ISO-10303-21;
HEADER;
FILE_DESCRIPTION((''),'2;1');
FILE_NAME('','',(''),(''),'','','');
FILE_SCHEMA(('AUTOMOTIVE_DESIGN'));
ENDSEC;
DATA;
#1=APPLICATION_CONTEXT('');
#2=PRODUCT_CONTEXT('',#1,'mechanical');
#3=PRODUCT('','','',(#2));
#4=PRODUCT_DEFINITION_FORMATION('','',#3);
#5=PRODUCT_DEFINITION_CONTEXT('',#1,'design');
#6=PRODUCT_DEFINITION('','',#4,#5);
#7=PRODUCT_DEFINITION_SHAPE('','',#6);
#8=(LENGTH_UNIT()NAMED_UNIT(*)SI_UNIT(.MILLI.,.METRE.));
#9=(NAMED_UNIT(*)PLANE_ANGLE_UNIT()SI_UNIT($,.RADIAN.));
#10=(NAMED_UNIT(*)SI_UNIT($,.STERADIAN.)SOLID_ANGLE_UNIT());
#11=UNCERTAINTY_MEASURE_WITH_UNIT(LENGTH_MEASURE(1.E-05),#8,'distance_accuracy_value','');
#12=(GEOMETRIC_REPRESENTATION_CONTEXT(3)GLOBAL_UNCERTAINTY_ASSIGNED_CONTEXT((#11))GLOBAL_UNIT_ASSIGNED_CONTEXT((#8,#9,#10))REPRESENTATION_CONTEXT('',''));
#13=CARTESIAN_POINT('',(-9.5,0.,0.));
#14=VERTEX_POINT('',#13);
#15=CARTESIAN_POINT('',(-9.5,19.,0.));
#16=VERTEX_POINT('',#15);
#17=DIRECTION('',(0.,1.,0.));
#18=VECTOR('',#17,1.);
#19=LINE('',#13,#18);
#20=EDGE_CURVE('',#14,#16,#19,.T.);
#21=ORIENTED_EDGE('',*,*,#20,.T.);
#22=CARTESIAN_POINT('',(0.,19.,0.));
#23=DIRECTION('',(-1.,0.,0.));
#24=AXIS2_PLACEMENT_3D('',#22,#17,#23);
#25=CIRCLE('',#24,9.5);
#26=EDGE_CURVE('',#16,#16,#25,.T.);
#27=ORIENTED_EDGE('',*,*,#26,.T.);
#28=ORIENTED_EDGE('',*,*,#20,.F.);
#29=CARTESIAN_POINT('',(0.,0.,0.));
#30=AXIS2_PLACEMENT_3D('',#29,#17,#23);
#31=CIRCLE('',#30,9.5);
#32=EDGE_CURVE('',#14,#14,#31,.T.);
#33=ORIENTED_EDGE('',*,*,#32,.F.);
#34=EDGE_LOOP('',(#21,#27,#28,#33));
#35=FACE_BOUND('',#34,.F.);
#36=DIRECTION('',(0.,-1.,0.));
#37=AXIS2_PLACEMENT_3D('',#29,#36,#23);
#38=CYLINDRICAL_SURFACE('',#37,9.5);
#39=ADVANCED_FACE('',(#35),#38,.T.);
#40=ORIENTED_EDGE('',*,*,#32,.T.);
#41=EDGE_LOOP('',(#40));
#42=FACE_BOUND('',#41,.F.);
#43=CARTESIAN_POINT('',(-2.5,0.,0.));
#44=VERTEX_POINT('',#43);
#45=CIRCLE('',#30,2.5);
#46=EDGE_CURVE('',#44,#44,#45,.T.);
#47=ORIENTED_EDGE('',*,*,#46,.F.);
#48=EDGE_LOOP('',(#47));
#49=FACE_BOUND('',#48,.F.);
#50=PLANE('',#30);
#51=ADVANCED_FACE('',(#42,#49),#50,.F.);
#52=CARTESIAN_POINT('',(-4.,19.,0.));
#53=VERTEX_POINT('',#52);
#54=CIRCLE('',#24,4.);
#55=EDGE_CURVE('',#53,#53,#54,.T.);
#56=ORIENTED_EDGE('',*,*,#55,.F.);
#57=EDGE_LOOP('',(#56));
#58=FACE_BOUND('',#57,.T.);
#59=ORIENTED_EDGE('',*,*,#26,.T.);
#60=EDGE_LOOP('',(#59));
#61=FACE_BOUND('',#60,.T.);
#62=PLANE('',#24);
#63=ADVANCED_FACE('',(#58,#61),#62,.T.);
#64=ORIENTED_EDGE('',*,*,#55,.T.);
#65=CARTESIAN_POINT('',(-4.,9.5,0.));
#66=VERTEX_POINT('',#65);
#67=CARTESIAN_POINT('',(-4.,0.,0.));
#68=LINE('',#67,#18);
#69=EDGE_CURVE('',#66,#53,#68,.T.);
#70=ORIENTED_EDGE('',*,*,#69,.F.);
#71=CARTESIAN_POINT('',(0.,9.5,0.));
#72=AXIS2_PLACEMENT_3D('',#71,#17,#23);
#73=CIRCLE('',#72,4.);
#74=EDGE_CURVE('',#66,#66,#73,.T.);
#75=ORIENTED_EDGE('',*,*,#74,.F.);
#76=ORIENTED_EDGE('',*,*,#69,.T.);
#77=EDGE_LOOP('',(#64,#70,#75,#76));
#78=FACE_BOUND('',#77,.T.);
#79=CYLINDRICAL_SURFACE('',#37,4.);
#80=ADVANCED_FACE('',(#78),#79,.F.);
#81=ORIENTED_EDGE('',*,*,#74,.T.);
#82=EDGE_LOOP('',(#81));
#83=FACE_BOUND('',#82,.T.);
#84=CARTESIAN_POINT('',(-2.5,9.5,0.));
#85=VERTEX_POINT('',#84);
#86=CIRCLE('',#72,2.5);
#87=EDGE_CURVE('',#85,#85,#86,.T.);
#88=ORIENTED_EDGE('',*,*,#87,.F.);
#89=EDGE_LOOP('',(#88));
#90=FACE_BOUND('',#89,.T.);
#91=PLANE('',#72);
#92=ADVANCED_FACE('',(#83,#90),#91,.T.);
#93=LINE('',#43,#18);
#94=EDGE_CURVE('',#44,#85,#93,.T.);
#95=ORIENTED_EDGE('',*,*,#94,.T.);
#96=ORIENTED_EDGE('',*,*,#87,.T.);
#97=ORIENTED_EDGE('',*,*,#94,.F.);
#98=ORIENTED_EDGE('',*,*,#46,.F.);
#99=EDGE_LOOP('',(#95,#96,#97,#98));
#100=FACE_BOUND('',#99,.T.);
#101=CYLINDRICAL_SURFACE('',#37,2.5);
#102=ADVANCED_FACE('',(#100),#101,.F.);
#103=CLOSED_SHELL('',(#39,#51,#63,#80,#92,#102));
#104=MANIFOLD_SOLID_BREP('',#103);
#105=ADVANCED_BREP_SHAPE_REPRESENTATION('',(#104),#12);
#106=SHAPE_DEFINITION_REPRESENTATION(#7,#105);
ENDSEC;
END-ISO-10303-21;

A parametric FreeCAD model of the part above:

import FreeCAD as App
import Part
import Sketcher
from FreeCAD import Vector
Q = App.Units.Quantity

doc = App.newDocument("Part")
params = doc.addObject("Spreadsheet::Sheet", "Params")
for row, (alias, value) in enumerate([
    ("sketch1_diameter", "19 mm"),
    ("sketch1_diameter2", "8 mm"),
    ("pad1_length", "19 mm"),
    ("sketch2_diameter", "8 mm"),
    ("sketch2_diameter2", "5 mm"),
    ("pad2_length", "9.5 mm"),
], start=1):
    params.set(f"A{row}", alias)
    params.set(f"B{row}", "=" + value)
    params.setAlias(f"B{row}", alias)

body = doc.addObject("PartDesign::Body", "Body")

# Sketch on XZ plane
sketch1 = body.newObject("Sketcher::SketchObject", "Sketch")
sketch1.AttachmentSupport = (doc.getObject("XZ_Plane"), [""])
sketch1.MapMode = "FlatFace"
sketch1.addGeometry(Part.Circle(Vector(0, 0, 0), Vector(0, 0, 1), 9.5), False)
sketch1.addGeometry(Part.Circle(Vector(0, 0, 0), Vector(0, 0, 1), 4), False)
sketch1.addConstraint(Sketcher.Constraint("Coincident", 0, 3, -1, 1))
sketch1.addConstraint(Sketcher.Constraint("Coincident", 1, 3, -1, 1))
sketch1.addConstraint(Sketcher.Constraint("Diameter", 0, Q("19 mm")))
sketch1.addConstraint(Sketcher.Constraint("Diameter", 1, Q("8 mm")))
sketch1.setExpression("Constraints[2]", "Params.sketch1_diameter")
sketch1.setExpression("Constraints[3]", "Params.sketch1_diameter2")
pad1 = body.newObject("PartDesign::Pad", "Pad")
pad1.Profile = sketch1
pad1.setExpression("Length", "Params.pad1_length")
pad1.Reversed = True

# Sketch on XZ plane
sketch2 = body.newObject("Sketcher::SketchObject", "Sketch001")
sketch2.AttachmentSupport = (doc.getObject("XZ_Plane"), [""])
sketch2.MapMode = "FlatFace"
sketch2.addGeometry(Part.Circle(Vector(0, 0, 0), Vector(0, 0, 1), 4), False)
sketch2.addGeometry(Part.Circle(Vector(0, 0, 0), Vector(0, 0, 1), 2.5), False)
sketch2.addConstraint(Sketcher.Constraint("Coincident", 0, 3, -1, 1))
sketch2.addConstraint(Sketcher.Constraint("Coincident", 1, 3, -1, 1))
sketch2.addConstraint(Sketcher.Constraint("Diameter", 0, Q("8 mm")))
sketch2.addConstraint(Sketcher.Constraint("Diameter", 1, Q("5 mm")))
sketch2.setExpression("Constraints[2]", "Params.sketch2_diameter")
sketch2.setExpression("Constraints[3]", "Params.sketch2_diameter2")
pad2 = body.newObject("PartDesign::Pad", "Pad001")
pad2.Profile = sketch2
pad2.setExpression("Length", "Params.pad2_length")
pad2.Reversed = True

doc.recompute()
